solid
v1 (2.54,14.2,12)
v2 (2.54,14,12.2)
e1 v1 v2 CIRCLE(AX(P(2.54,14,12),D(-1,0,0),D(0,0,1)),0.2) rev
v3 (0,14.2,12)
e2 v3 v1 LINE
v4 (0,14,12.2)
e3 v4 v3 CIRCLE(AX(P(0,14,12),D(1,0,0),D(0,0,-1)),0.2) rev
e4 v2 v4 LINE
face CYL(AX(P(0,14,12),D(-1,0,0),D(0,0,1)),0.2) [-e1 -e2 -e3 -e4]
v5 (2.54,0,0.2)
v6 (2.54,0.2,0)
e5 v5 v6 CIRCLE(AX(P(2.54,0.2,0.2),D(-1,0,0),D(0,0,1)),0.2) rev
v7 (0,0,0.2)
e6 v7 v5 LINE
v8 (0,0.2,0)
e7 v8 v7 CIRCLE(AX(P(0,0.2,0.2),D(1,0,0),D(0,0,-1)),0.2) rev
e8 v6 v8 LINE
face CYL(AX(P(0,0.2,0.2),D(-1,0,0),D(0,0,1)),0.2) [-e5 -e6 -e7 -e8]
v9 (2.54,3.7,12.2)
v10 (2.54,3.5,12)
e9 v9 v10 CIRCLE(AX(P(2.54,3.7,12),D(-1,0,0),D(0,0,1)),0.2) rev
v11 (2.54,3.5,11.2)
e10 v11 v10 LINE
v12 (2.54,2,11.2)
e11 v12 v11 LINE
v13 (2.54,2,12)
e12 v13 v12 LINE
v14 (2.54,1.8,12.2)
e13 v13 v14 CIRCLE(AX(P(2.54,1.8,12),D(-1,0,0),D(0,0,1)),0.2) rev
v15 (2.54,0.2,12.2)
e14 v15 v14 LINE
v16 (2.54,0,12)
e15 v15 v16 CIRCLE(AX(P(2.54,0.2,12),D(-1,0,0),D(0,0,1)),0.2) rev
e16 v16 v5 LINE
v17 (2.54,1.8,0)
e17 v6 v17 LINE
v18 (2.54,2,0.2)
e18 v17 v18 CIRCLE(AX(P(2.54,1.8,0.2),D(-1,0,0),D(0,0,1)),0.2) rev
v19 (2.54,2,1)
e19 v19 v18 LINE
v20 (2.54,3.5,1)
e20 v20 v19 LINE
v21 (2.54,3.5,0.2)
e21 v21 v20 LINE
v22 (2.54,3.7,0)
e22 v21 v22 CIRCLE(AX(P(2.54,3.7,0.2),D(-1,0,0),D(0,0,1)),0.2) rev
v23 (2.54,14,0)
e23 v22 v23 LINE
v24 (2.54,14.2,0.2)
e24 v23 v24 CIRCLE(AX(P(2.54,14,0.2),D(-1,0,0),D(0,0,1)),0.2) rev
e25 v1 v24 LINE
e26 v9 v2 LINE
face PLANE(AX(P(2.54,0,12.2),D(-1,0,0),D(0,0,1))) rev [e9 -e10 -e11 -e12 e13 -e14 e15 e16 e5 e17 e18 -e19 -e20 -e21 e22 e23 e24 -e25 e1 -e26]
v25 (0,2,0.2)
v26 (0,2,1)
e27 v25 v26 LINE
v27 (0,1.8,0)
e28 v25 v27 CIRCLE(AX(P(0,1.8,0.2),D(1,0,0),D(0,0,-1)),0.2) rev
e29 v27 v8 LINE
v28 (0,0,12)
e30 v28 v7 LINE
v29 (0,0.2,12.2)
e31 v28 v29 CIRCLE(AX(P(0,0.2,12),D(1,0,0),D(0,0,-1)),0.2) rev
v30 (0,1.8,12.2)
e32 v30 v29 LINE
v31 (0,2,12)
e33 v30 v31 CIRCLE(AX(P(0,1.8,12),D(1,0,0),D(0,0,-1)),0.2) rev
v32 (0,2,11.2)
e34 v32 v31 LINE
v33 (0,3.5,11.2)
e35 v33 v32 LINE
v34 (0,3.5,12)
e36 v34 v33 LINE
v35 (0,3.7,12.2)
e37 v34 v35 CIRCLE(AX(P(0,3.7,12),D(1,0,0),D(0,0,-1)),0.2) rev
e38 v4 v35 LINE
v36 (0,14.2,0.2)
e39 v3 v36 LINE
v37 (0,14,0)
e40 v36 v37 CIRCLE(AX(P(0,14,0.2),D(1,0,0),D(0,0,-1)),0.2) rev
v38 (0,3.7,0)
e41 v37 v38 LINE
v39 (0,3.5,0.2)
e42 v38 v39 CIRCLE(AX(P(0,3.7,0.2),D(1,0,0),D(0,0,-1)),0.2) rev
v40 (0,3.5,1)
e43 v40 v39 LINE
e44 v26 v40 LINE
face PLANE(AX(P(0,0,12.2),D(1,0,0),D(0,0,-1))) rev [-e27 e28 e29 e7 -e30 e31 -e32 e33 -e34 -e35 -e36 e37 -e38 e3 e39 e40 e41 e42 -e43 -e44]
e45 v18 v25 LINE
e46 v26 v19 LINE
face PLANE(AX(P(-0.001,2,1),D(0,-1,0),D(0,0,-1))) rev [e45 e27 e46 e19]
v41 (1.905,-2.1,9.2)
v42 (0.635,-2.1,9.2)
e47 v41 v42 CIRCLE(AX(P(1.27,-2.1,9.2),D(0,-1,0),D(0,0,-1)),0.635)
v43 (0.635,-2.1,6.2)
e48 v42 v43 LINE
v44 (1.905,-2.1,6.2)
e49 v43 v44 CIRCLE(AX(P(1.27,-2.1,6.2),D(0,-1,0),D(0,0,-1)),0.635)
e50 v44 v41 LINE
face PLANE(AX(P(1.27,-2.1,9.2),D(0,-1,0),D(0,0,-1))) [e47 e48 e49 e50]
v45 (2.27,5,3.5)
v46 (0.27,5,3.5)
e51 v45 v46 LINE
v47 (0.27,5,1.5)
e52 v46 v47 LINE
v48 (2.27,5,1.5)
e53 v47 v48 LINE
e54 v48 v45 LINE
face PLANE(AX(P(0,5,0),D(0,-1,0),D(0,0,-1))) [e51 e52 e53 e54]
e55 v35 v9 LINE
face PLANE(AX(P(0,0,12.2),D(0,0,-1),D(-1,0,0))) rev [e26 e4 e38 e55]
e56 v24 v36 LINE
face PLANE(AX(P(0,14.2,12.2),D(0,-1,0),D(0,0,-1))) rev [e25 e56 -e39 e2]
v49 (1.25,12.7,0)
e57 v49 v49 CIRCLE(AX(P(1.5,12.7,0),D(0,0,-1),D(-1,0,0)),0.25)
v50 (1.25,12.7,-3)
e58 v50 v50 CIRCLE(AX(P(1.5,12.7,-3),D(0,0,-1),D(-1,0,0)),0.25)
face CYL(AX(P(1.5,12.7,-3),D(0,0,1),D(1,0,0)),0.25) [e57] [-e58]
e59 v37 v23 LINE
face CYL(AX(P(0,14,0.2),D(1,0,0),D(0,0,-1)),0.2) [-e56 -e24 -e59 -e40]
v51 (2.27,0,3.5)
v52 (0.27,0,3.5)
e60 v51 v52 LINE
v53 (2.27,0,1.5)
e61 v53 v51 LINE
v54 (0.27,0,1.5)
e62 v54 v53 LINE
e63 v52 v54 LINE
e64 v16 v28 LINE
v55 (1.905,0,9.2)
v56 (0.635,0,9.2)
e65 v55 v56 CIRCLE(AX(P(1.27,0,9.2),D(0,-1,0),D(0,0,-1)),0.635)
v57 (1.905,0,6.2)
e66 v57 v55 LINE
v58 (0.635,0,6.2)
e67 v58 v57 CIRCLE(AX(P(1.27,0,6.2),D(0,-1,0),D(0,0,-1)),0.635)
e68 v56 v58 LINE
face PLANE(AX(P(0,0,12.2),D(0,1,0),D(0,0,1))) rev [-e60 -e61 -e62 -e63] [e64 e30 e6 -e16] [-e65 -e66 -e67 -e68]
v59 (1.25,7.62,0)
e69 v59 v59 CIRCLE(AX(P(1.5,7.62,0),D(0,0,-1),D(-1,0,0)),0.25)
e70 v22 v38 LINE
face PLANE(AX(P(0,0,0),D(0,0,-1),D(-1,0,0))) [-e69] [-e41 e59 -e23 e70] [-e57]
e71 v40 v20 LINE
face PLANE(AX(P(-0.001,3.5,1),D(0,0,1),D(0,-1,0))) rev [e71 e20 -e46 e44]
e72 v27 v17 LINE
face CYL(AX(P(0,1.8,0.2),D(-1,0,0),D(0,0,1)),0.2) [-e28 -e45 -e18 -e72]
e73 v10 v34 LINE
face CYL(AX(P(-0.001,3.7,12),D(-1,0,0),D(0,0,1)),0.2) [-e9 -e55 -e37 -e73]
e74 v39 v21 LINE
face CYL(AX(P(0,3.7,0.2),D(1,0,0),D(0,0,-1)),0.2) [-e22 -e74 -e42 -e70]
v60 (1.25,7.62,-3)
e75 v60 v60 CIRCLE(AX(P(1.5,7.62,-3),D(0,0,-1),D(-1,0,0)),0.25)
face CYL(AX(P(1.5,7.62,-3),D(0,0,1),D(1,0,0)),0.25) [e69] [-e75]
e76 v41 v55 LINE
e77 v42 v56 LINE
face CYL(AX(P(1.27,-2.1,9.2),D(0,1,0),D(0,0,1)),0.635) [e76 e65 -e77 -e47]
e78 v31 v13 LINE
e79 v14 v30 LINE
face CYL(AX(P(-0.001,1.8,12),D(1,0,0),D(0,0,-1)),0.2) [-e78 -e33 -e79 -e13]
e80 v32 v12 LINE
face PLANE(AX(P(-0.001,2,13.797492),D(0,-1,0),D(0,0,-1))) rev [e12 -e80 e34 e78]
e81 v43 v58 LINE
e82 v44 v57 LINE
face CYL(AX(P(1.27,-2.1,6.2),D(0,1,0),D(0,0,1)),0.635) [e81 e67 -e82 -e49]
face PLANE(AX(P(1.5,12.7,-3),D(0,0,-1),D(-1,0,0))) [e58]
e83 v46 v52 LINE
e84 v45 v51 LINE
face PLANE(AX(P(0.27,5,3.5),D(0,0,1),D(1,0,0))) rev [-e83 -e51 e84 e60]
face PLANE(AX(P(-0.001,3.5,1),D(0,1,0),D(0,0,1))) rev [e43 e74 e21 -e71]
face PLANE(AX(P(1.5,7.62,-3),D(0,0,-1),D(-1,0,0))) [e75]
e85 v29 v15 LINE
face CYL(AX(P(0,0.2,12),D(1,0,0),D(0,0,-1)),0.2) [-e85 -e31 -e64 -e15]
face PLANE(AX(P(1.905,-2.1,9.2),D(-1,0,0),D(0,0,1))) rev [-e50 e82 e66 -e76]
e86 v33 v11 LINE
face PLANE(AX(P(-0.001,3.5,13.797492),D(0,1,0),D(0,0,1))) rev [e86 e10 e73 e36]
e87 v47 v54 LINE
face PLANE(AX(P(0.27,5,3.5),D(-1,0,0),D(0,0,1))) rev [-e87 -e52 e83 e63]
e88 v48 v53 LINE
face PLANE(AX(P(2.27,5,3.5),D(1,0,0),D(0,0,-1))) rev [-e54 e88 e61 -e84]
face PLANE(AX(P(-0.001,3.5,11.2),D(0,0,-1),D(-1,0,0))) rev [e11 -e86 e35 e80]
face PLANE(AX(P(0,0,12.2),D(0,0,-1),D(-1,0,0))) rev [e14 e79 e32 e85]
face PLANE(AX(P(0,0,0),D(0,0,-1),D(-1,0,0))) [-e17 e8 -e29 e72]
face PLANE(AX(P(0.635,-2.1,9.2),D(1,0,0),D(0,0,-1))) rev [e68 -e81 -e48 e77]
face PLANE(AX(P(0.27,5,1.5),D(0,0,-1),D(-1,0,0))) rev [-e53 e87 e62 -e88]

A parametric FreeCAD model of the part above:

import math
import FreeCAD as App
import Part
import Sketcher

V = App.Vector
Q = App.Units.Quantity


def edges_at(feature, points):
    """Names of the edges that pass closest to the given points."""
    edges = feature.Shape.Edges
    near = lambda p: min(range(len(edges)), key=lambda i: edges[i].distToShape(Part.Vertex(*p))[0])
    return sorted({f"Edge{near(p) + 1}" for p in points})


def add_polygon(sketch, points):
    """Adds a closed chain of lines whose ends are joined by coincident constraints."""
    first, n = sketch.GeometryCount, len(points)
    for a, b in zip(points, points[1:] + points[:1]):
        sketch.addGeometry(Part.LineSegment(App.Vector(*a, 0), App.Vector(*b, 0)), False)
    for i in range(n):
        sketch.addConstraint(Sketcher.Constraint("Coincident", first + i, 2, first + (i + 1) % n, 1))

doc = App.newDocument("Part")
body = doc.addObject("PartDesign::Body", "Body")

# Sketch on XY plane
sketch1 = body.newObject("Sketcher::SketchObject", "Sketch")
sketch1.AttachmentSupport = (doc.getObject("XY_Plane"), [""])
sketch1.MapMode = "FlatFace"
add_polygon(sketch1, [(0, 14.2), (0, 0), (2.5, 0), (2.5, 14.2)])  # lines 0-3
sketch1.addConstraint([
    Sketcher.Constraint("Vertical", 0),
    Sketcher.Constraint("Horizontal", 1),
    Sketcher.Constraint("Vertical", 2),
    Sketcher.Constraint("Horizontal", 3),
    Sketcher.Constraint("Coincident", 0, 2, -1, 1),
    Sketcher.Constraint("DistanceY", 0, 2, 0, 1, Q("14.2 mm")),
    Sketcher.Constraint("DistanceX", 1, 1, 1, 2, Q("2.54 mm")),
])
pad1 = body.newObject("PartDesign::Pad", "Pad")
pad1.Profile = sketch1
pad1.Length = 12.2

# Sketch on XY plane
sketch2 = body.newObject("Sketcher::SketchObject", "Sketch001")
sketch2.AttachmentSupport = (doc.getObject("XY_Plane"), [""])
sketch2.MapMode = "FlatFace"
sketch2.addGeometry([
    Part.Circle(V(1.5, 12.7, 0), V(0, 0, 1), 0.25),
    Part.Circle(V(1.5, 7.62, 0), V(0, 0, 1), 0.25),
], False)
sketch2.addConstraint([
    Sketcher.Constraint("Equal", 0, 1),
    Sketcher.Constraint("Vertical", 0, 3, 1, 3),
    Sketcher.Constraint("Diameter", 0, Q("0.5 mm")),
    Sketcher.Constraint("DistanceX", -1, 1, 0, 3, Q("1.5 mm")),
    Sketcher.Constraint("DistanceY", -1, 1, 0, 3, Q("12.7 mm")),
    Sketcher.Constraint("DistanceY", -1, 1, 1, 3, Q("7.62 mm")),
])
pad2 = body.newObject("PartDesign::Pad", "Pad001")
pad2.Profile = sketch2
pad2.Length = 3
pad2.Reversed = True

# Sketch on XZ plane
sketch3 = body.newObject("Sketcher::SketchObject", "Sketch002")
sketch3.AttachmentSupport = (doc.getObject("XZ_Plane"), [""])
sketch3.MapMode = "FlatFace"
sketch3.addGeometry([
    Part.LineSegment(V(1.9, 6.2, 0), V(1.9, 9.2, 0)),
    Part.ArcOfCircle(Part.Circle(V(1.3, 9.2, 0), V(0, 0, 1), 0.6), math.radians(0), math.radians(180)),
    Part.LineSegment(V(0.6, 9.2, 0), V(0.6, 6.2, 0)),
    Part.ArcOfCircle(Part.Circle(V(1.3, 6.2, 0), V(0, 0, 1), 0.6), math.radians(180), math.radians(360)),
], False)
sketch3.addConstraint([
    Sketcher.Constraint("Tangent", 0, 2, 1, 1),
    Sketcher.Constraint("Tangent", 1, 2, 2, 1),
    Sketcher.Constraint("Tangent", 2, 2, 3, 1),
    Sketcher.Constraint("Tangent", 3, 2, 0, 1),
    Sketcher.Constraint("Vertical", 0),
    Sketcher.Constraint("Vertical", 2),
    Sketcher.Constraint("DistanceY", 0, 1, 0, 2, Q("3 mm")),
    Sketcher.Constraint("Radius", 1, Q("0.635 mm")),
    Sketcher.Constraint("DistanceY", -1, 1, 1, 3, Q("9.2 mm")),
    Sketcher.Constraint("DistanceX", -1, 1, 1, 3, Q("1.27 mm")),
])
pad3 = body.newObject("PartDesign::Pad", "Pad002")
pad3.Profile = sketch3
pad3.Length = 2.1

# Sketch on XZ plane
sketch4 = body.newObject("Sketcher::SketchObject", "Sketch003")
sketch4.AttachmentSupport = (doc.getObject("XZ_Plane"), [""])
sketch4.MapMode = "FlatFace"
add_polygon(sketch4, [(0.3, 3.5), (0.3, 1.5), (2.3, 1.5), (2.3, 3.5)])  # lines 0-3
sketch4.addConstraint([
    Sketcher.Constraint("Vertical", 0),
    Sketcher.Constraint("Horizontal", 1),
    Sketcher.Constraint("Vertical", 2),
    Sketcher.Constraint("Horizontal", 3),
    Sketcher.Constraint("Equal", 3, 0),
    Sketcher.Constraint("DistanceX", 1, 1, 1, 2, Q("2 mm")),
    Sketcher.Constraint("DistanceY", -1, 1, 0, 2, Q("1.5 mm")),
    Sketcher.Constraint("DistanceX", -1, 1, 0, 2, Q("0.27 mm")),
])
pocket1 = body.newObject("PartDesign::Pocket", "Pocket")
pocket1.Profile = sketch4
pocket1.Length = 5

# Sketch on YZ plane
sketch5 = body.newObject("Sketcher::SketchObject", "Sketch004")
sketch5.AttachmentSupport = (doc.getObject("YZ_Plane"), [""])
sketch5.MapMode = "FlatFace"
sketch5.AttachmentOffset = App.Placement(V(0, 0, 2.54), App.Rotation())
add_polygon(sketch5, [(3.5, 13.8), (2, 13.8), (2, 11.2), (3.5, 11.2)])  # lines 0-3
sketch5.addConstraint([
    Sketcher.Constraint("Horizontal", 0),
    Sketcher.Constraint("Vertical", 1),
    Sketcher.Constraint("Horizontal", 2),
    Sketcher.Constraint("Vertical", 3),
    Sketcher.Constraint("DistanceX", 0, 2, 0, 1, Q("1.5 mm")),
    Sketcher.Constraint("DistanceX", -1, 1, 0, 2, Q("2 mm")),
    Sketcher.Constraint("DistanceY", -1, 1, 1, 2, Q("11.2 mm")),
    Sketcher.Constraint("DistanceY", 1, 2, 1, 1, Q("2.597492 mm")),
])
pocket2 = body.newObject("PartDesign::Pocket", "Pocket001")
pocket2.Profile = sketch5
pocket2.Length = 2.54

# Sketch on YZ plane
sketch6 = body.newObject("Sketcher::SketchObject", "Sketch005")
sketch6.AttachmentSupport = (doc.getObject("YZ_Plane"), [""])
sketch6.MapMode = "FlatFace"
sketch6.AttachmentOffset = App.Placement(V(0, 0, 2.54), App.Rotation())
add_polygon(sketch6, [(3.5, 1), (2, 1), (2, -1.7), (3.5, -1.7)])  # lines 0-3
sketch6.addConstraint([
    Sketcher.Constraint("Horizontal", 0),
    Sketcher.Constraint("Vertical", 1),
    Sketcher.Constraint("Horizontal", 2),
    Sketcher.Constraint("Vertical", 3),
    Sketcher.Constraint("DistanceX", 0, 2, 0, 1, Q("1.5 mm")),
    Sketcher.Constraint("DistanceX", -1, 1, 0, 2, Q("2 mm")),
    Sketcher.Constraint("DistanceY", -1, 1, 0, 2, Q("1 mm")),
    Sketcher.Constraint("DistanceY", 1, 2, 1, 1, Q("2.65526 mm")),
])
pocket3 = body.newObject("PartDesign::Pocket", "Pocket002")
pocket3.Profile = sketch6
pocket3.Length = 2.54
doc.recompute()

fillet = body.newObject("PartDesign::Fillet", "Fillet")
fillet.Base = (pocket3, edges_at(pocket3, [
    (1.27, 14.2, 12.2),
    (1.27, 14.2, 0),
    (1.27, 0, 0),
    (1.27, 3.5, 12.2),
    (1.27, 2, 12.2),
    (1.27, 3.5, 0),
    (1.27, 2, 0),
    (1.27, 0, 12.2),
]))
fillet.Radius = 0.2

doc.recompute()
